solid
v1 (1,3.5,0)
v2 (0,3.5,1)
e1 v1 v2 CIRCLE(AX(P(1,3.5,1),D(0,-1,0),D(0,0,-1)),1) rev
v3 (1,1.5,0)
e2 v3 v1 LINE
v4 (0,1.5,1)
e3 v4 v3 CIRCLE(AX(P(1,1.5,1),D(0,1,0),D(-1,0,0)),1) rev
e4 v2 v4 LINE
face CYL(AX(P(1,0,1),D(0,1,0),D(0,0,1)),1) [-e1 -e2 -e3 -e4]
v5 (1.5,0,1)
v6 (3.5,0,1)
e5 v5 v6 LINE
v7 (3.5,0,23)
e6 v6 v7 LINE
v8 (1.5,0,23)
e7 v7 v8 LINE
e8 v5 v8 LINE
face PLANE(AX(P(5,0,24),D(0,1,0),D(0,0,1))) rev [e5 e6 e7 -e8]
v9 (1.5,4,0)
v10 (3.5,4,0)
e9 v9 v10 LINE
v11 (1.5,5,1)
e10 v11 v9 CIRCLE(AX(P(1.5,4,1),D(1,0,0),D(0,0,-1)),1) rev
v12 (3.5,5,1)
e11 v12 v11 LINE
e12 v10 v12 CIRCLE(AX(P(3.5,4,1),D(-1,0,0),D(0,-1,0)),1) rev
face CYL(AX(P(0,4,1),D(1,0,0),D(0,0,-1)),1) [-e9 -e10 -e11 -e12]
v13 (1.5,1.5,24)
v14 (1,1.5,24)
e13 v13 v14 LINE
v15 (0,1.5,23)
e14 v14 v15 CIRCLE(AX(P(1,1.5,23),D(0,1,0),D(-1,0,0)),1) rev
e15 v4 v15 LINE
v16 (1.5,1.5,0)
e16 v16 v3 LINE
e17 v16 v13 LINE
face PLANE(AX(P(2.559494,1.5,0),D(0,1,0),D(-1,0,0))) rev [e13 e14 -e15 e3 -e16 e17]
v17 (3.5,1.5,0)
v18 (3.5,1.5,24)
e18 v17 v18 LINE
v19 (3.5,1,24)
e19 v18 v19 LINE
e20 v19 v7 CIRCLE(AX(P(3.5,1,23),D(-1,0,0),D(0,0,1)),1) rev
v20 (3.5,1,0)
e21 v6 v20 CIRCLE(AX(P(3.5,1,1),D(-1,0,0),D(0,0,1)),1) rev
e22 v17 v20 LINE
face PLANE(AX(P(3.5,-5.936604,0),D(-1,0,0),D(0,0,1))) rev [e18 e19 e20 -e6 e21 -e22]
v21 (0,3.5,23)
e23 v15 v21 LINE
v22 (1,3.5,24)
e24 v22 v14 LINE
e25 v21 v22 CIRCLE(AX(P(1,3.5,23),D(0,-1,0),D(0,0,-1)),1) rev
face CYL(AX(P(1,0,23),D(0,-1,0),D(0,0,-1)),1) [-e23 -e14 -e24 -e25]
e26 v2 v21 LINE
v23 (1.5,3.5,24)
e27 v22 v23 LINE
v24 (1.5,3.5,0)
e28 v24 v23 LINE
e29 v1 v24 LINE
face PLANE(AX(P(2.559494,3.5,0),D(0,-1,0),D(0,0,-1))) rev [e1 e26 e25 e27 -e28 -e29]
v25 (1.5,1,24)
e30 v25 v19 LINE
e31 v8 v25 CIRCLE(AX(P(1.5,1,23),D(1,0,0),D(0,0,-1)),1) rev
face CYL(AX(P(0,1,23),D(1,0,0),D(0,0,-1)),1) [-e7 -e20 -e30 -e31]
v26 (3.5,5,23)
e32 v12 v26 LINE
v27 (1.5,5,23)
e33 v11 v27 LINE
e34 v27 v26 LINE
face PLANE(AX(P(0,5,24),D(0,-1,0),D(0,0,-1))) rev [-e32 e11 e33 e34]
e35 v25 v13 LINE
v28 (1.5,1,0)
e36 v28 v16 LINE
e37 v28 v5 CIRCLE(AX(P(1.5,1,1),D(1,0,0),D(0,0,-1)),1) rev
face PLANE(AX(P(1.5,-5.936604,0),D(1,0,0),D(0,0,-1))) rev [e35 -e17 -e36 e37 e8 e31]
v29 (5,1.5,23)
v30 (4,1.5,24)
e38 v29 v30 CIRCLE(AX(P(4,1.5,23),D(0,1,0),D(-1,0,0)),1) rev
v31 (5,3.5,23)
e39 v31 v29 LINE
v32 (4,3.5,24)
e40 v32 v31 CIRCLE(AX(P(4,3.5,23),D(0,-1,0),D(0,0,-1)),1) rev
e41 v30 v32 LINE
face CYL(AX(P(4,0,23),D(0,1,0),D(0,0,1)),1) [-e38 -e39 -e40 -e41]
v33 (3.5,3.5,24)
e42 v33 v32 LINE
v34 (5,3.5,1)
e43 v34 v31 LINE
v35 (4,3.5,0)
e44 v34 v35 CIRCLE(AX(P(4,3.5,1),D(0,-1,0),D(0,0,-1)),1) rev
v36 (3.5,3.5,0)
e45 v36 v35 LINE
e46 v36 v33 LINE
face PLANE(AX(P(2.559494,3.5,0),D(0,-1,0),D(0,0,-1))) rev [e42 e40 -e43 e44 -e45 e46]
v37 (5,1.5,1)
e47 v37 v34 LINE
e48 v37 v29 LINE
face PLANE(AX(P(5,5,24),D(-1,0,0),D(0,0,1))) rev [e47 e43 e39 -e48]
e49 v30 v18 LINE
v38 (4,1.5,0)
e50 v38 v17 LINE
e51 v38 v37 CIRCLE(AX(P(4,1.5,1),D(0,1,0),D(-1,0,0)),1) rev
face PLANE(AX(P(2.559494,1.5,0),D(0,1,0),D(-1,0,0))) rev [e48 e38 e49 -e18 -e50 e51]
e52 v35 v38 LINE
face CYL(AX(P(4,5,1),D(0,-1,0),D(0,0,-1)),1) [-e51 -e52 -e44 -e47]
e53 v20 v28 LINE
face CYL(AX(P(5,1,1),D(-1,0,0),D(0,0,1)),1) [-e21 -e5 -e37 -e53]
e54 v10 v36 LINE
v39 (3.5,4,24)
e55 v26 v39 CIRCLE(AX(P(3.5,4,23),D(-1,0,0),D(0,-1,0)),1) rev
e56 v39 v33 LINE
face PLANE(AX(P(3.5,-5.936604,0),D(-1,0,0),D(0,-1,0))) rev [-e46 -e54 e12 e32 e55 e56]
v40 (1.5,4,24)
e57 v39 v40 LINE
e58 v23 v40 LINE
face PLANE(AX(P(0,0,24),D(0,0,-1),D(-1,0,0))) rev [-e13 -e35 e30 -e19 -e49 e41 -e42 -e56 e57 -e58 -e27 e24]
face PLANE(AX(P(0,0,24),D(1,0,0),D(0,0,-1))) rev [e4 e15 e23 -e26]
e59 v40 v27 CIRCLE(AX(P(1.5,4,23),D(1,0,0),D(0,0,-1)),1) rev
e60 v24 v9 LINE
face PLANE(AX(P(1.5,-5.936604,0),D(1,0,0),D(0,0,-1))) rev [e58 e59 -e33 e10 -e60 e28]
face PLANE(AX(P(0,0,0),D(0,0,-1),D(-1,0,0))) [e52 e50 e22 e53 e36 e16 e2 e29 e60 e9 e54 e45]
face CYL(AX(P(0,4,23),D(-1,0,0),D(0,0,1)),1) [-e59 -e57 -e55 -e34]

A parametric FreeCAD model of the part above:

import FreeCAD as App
import Part
import Sketcher


def edges_at(feature, points):
    """Names of the edges that pass closest to the given points."""
    edges = feature.Shape.Edges
    near = lambda p: min(range(len(edges)), key=lambda i: edges[i].distToShape(Part.Vertex(*p))[0])
    return sorted({f"Edge{near(p) + 1}" for p in points})

doc = App.newDocument("Part")
body = doc.addObject("PartDesign::Body", "Body")

sketch1 = doc.addObject("Sketcher::SketchObject", "Sketch")
body.addObject(sketch1)
sketch1.AttachmentSupport = (doc.XY_Plane, [""])
sketch1.MapMode = "FlatFace"
sketch1.addGeometry([
    Part.LineSegment(App.Vector(0, 5, 0), App.Vector(0, 0, 0)),
    Part.LineSegment(App.Vector(0, 0, 0), App.Vector(5, 0, 0)),
    Part.LineSegment(App.Vector(5, 0, 0), App.Vector(5, 5, 0)),
    Part.LineSegment(App.Vector(5, 5, 0), App.Vector(0, 5, 0)),
], False)
sketch1.addConstraint([
    Sketcher.Constraint("Coincident", 0, 2, 1, 1),
    Sketcher.Constraint("Coincident", 1, 2, 2, 1),
    Sketcher.Constraint("Coincident", 2, 2, 3, 1),
    Sketcher.Constraint("Coincident", 3, 2, 0, 1),
    Sketcher.Constraint("Vertical", 0),
    Sketcher.Constraint("Horizontal", 1),
    Sketcher.Constraint("Vertical", 2),
    Sketcher.Constraint("Horizontal", 3),
    Sketcher.Constraint("Coincident", 0, 2, -1, 1),
    Sketcher.Constraint("Equal", 3, 0),
    Sketcher.Constraint("DistanceX", 1, 1, 1, 2, 5.0),
])
pad1 = doc.addObject("PartDesign::Pad", "Pad")
body.addObject(pad1)
pad1.Profile = sketch1
pad1.Length = 24

sketch2 = doc.addObject("Sketcher::SketchObject", "Sketch001")
body.addObject(sketch2)
sketch2.AttachmentSupport = (doc.XY_Plane, [""])
sketch2.MapMode = "FlatFace"
sketch2.AttachmentOffset = App.Placement(App.Vector(0, 0, 24), App.Rotation())
sketch2.addGeometry([
    Part.LineSegment(App.Vector(0, 5, 0), App.Vector(0, 3.5, 0)),
    Part.LineSegment(App.Vector(0, 3.5, 0), App.Vector(1.5, 3.5, 0)),
    Part.LineSegment(App.Vector(1.5, 3.5, 0), App.Vector(1.5, 5, 0)),
    Part.LineSegment(App.Vector(1.5, 5, 0), App.Vector(0, 5, 0)),
    Part.LineSegment(App.Vector(3.5, 5, 0), App.Vector(3.5, 3.5, 0)),
    Part.LineSegment(App.Vector(3.5, 3.5, 0), App.Vector(5, 3.5, 0)),
    Part.LineSegment(App.Vector(5, 3.5, 0), App.Vector(5, 5, 0)),
    Part.LineSegment(App.Vector(5, 5, 0), App.Vector(3.5, 5, 0)),
    Part.LineSegment(App.Vector(3.5, 1.5, 0), App.Vector(3.5, 0, 0)),
    Part.LineSegment(App.Vector(3.5, 0, 0), App.Vector(5, 0, 0)),
    Part.LineSegment(App.Vector(5, 0, 0), App.Vector(5, 1.5, 0)),
    Part.LineSegment(App.Vector(5, 1.5, 0), App.Vector(3.5, 1.5, 0)),
    Part.LineSegment(App.Vector(0, 1.5, 0), App.Vector(0, 0, 0)),
    Part.LineSegment(App.Vector(0, 0, 0), App.Vector(1.5, 0, 0)),
    Part.LineSegment(App.Vector(1.5, 0, 0), App.Vector(1.5, 1.5, 0)),
    Part.LineSegment(App.Vector(1.5, 1.5, 0), App.Vector(0, 1.5, 0)),
], False)
sketch2.addConstraint([
    Sketcher.Constraint("Coincident", 0, 2, 1, 1),
    Sketcher.Constraint("Coincident", 1, 2, 2, 1),
    Sketcher.Constraint("Coincident", 2, 2, 3, 1),
    Sketcher.Constraint("Coincident", 3, 2, 0, 1),
    Sketcher.Constraint("Coincident", 4, 2, 5, 1),
    Sketcher.Constraint("Coincident", 5, 2, 6, 1),
    Sketcher.Constraint("Coincident", 6, 2, 7, 1),
    Sketcher.Constraint("Coincident", 7, 2, 4, 1),
    Sketcher.Constraint("Coincident", 8, 2, 9, 1),
    Sketcher.Constraint("Coincident", 9, 2, 10, 1),
    Sketcher.Constraint("Coincident", 10, 2, 11, 1),
    Sketcher.Constraint("Coincident", 11, 2, 8, 1),
    Sketcher.Constraint("Coincident", 12, 2, 13, 1),
    Sketcher.Constraint("Coincident", 13, 2, 14, 1),
    Sketcher.Constraint("Coincident", 14, 2, 15, 1),
    Sketcher.Constraint("Coincident", 15, 2, 12, 1),
    Sketcher.Constraint("Vertical", 0),
    Sketcher.Constraint("Horizontal", 1),
    Sketcher.Constraint("Vertical", 2),
    Sketcher.Constraint("Horizontal", 3),
    Sketcher.Constraint("Vertical", 4),
    Sketcher.Constraint("Horizontal", 5),
    Sketcher.Constraint("Vertical", 6),
    Sketcher.Constraint("Horizontal", 7),
    Sketcher.Constraint("Vertical", 8),
    Sketcher.Constraint("Horizontal", 9),
    Sketcher.Constraint("Vertical", 10),
    Sketcher.Constraint("Horizontal", 11),
    Sketcher.Constraint("Vertical", 12),
    Sketcher.Constraint("Horizontal", 13),
    Sketcher.Constraint("Vertical", 14),
    Sketcher.Constraint("Horizontal", 15),
    Sketcher.Constraint("Coincident", 12, 2, -1, 1),
    Sketcher.Constraint("PointOnObject", 0, 2, -2),
    Sketcher.Constraint("PointOnObject", 8, 2, -1),
    Sketcher.Constraint("Horizontal", 1, 2, 4, 2),
    Sketcher.Constraint("Horizontal", 3, 2, 6, 2),
    Sketcher.Constraint("Horizontal", 11, 2, 14, 2),
    Sketcher.Constraint("Vertical", 7, 2, 8, 2),
    Sketcher.Constraint("Vertical", 6, 2, 9, 2),
    Sketcher.Constraint("Vertical", 2, 2, 13, 2),
    Sketcher.Constraint("Equal", 3, 5),
    Sketcher.Constraint("Equal", 15, 0),
    Sketcher.Constraint("Equal", 6, 8),
    Sketcher.Constraint("DistanceX", 1, 1, 1, 2, 1.5),
    Sketcher.Constraint("DistanceY", -1, 1, 2, 2, 5.0),
    Sketcher.Constraint("DistanceX", -1, 1, 5, 2, 5.0),
])
pocket1 = doc.addObject("PartDesign::Pocket", "Pocket")
body.addObject(pocket1)
pocket1.Profile = sketch2
pocket1.Type = "ThroughAll"
doc.recompute()

fillet = doc.addObject("PartDesign::Fillet", "Fillet")
body.addObject(fillet)
fillet.Base = (pocket1, edges_at(pocket1, [
    (0, 2.5, 24),
    (2.5, 5, 24),
    (5, 2.5, 24),
    (2.5, 0, 24),
]))
fillet.Radius = 1
doc.recompute()

fillet2 = doc.addObject("PartDesign::Fillet", "Fillet001")
body.addObject(fillet2)
fillet2.Base = (fillet, edges_at(fillet, [
    (0, 2.5, 0),
    (2.5, 5, 0),
    (5, 2.5, 0),
    (2.5, 0, 0),
]))
fillet2.Radius = 1

doc.recompute()
